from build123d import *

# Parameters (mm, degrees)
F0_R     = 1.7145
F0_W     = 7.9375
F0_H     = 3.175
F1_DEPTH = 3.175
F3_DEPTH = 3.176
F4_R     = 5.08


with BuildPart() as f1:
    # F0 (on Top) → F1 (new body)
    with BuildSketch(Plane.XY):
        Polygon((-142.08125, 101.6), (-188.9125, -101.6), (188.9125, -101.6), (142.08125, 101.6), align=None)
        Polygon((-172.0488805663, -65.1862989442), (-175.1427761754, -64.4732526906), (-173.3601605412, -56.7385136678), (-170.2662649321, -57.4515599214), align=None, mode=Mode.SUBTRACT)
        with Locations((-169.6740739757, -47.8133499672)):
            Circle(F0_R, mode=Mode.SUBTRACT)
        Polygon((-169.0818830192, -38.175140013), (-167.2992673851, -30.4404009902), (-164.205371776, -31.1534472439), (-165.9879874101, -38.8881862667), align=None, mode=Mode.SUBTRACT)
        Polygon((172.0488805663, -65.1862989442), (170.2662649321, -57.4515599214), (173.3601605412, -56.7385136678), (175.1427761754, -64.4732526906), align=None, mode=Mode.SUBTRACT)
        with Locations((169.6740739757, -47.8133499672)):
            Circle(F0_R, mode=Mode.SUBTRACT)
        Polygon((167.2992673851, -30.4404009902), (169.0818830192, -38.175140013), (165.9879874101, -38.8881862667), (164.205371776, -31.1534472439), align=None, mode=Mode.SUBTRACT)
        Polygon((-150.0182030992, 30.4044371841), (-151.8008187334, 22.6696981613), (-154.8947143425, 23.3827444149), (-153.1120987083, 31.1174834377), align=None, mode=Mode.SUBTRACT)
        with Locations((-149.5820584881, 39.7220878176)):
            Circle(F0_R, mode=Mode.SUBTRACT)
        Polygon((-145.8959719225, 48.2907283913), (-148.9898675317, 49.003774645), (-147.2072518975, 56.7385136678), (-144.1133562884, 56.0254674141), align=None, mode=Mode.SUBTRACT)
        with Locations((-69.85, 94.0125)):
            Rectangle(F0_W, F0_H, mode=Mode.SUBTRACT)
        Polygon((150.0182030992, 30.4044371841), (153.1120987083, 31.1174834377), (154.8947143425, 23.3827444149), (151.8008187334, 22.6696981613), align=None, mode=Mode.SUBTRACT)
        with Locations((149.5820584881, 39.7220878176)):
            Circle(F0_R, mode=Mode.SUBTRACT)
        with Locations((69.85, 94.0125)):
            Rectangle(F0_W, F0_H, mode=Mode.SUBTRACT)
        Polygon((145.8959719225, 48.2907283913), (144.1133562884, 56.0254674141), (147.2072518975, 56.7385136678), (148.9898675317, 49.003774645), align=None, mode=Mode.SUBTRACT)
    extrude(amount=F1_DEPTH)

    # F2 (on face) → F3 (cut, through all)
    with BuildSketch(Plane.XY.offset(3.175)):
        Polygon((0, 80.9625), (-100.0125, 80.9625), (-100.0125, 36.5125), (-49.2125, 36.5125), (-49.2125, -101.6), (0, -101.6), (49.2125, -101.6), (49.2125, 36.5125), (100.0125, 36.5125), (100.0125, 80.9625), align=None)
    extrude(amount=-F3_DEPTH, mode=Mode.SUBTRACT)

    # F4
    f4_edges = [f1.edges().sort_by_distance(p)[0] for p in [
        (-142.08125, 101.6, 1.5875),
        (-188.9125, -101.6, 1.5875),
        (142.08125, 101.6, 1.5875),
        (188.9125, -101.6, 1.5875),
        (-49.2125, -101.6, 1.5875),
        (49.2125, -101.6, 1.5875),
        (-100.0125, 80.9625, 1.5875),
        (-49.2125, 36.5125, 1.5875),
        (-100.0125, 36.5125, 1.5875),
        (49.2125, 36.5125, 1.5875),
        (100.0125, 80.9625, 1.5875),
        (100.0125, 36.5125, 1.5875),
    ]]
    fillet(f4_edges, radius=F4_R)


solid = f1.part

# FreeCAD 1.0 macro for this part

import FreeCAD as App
import Part
import Sketcher
Q = App.Units.Quantity


def edges_at(feature, points):
    """Names of the edges that pass closest to the given points."""
    edges = feature.Shape.Edges
    near = lambda p: min(range(len(edges)), key=lambda i: edges[i].distToShape(Part.Vertex(*p))[0])
    return sorted({f"Edge{near(p) + 1}" for p in points})


def add_polygon(sketch, points):
    """Adds a closed chain of lines whose ends are joined by coincident constraints."""
    first, n = sketch.GeometryCount, len(points)
    for a, b in zip(points, points[1:] + points[:1]):
        sketch.addGeometry(Part.LineSegment(App.Vector(*a, 0), App.Vector(*b, 0)), False)
    for i in range(n):
        sketch.addConstraint(Sketcher.Constraint("Coincident", first + i, 2, first + (i + 1) % n, 1))

doc = App.newDocument("Part")
body = doc.addObject("PartDesign::Body", "Body")

# Sketch on XY plane
sketch1 = body.newObject("Sketcher::SketchObject", "Sketch")
sketch1.AttachmentSupport = (doc.getObject("XY_Plane"), [""])
sketch1.MapMode = "FlatFace"
add_polygon(sketch1, [(-142.08125, 101.6), (-188.9125, -101.6), (188.9125, -101.6), (142.08125, 101.6)])  # lines 0-3
add_polygon(sketch1, [(-170.266265, -57.45156), (-172.048881, -65.186299), (-175.142776, -64.473253), (-173.360161, -56.738514)])  # lines 4-7
sketch1.addGeometry(Part.Circle(App.Vector(-169.674074, -47.81335, 0), App.Vector(0, 0, 1), 1.7145), False)  # 8
add_polygon(sketch1, [(-165.987987, -38.888186), (-169.081883, -38.17514), (-167.299267, -30.440401), (-164.205372, -31.153447)])  # lines 9-12
add_polygon(sketch1, [(175.142776, -64.473253), (172.048881, -65.186299), (170.266265, -57.45156), (173.360161, -56.738514)])  # lines 13-16
sketch1.addGeometry(Part.Circle(App.Vector(169.674074, -47.81335, 0), App.Vector(0, 0, 1), 1.7145), False)  # 17
add_polygon(sketch1, [(164.205372, -31.153447), (167.299267, -30.440401), (169.081883, -38.17514), (165.987987, -38.888186)])  # lines 18-21
add_polygon(sketch1, [(-153.112099, 31.117483), (-150.018203, 30.404437), (-151.800819, 22.669698), (-154.894714, 23.382744)])  # lines 22-25
sketch1.addGeometry(Part.Circle(App.Vector(-149.582058, 39.722088, 0), App.Vector(0, 0, 1), 1.7145), False)  # 26
add_polygon(sketch1, [(-144.113356, 56.025467), (-145.895972, 48.290728), (-148.989868, 49.003775), (-147.207252, 56.738514)])  # lines 27-30
add_polygon(sketch1, [(-65.88125, 92.425), (-73.81875, 92.425), (-73.81875, 95.6), (-65.88125, 95.6)])  # lines 31-34
add_polygon(sketch1, [(151.800819, 22.669698), (150.018203, 30.404437), (153.112099, 31.117483), (154.894714, 23.382744)])  # lines 35-38
sketch1.addGeometry(Part.Circle(App.Vector(149.582058, 39.722088, 0), App.Vector(0, 0, 1), 1.7145), False)  # 39
add_polygon(sketch1, [(148.989868, 49.003775), (145.895972, 48.290728), (144.113356, 56.025467), (147.207252, 56.738514)])  # lines 40-43
add_polygon(sketch1, [(73.81875, 92.425), (65.88125, 92.425), (65.88125, 95.6), (73.81875, 95.6)])  # lines 44-47
sketch1.addConstraint(Sketcher.Constraint("Horizontal", 1))
sketch1.addConstraint(Sketcher.Constraint("Horizontal", 3))
sketch1.addConstraint(Sketcher.Constraint("Horizontal", 31))
sketch1.addConstraint(Sketcher.Constraint("Vertical", 32))
sketch1.addConstraint(Sketcher.Constraint("Horizontal", 33))
sketch1.addConstraint(Sketcher.Constraint("Vertical", 34))
sketch1.addConstraint(Sketcher.Constraint("Horizontal", 44))
sketch1.addConstraint(Sketcher.Constraint("Vertical", 45))
sketch1.addConstraint(Sketcher.Constraint("Horizontal", 46))
sketch1.addConstraint(Sketcher.Constraint("Vertical", 47))
sketch1.addConstraint(Sketcher.Constraint("Equal", 8, 17))
sketch1.addConstraint(Sketcher.Constraint("Equal", 17, 26))
sketch1.addConstraint(Sketcher.Constraint("Equal", 26, 39))
sketch1.addConstraint(Sketcher.Constraint("Symmetric", 8, 3, 17, 3, -2))
sketch1.addConstraint(Sketcher.Constraint("Symmetric", 26, 3, 39, 3, -2))
sketch1.addConstraint(Sketcher.Constraint("Symmetric", 4, 2, 13, 2, -2))
sketch1.addConstraint(Sketcher.Constraint("Symmetric", 7, 2, 14, 2, -2))
sketch1.addConstraint(Sketcher.Constraint("Symmetric", 6, 2, 15, 2, -2))
sketch1.addConstraint(Sketcher.Constraint("Symmetric", 5, 2, 16, 2, -2))
sketch1.addConstraint(Sketcher.Constraint("Symmetric", 10, 2, 18, 2, -2))
sketch1.addConstraint(Sketcher.Constraint("Symmetric", 9, 2, 19, 2, -2))
sketch1.addConstraint(Sketcher.Constraint("Symmetric", 12, 2, 20, 2, -2))
sketch1.addConstraint(Sketcher.Constraint("Symmetric", 11, 2, 21, 2, -2))
sketch1.addConstraint(Sketcher.Constraint("Symmetric", 22, 2, 35, 2, -2))
sketch1.addConstraint(Sketcher.Constraint("Symmetric", 25, 2, 36, 2, -2))
sketch1.addConstraint(Sketcher.Constraint("Symmetric", 24, 2, 37, 2, -2))
sketch1.addConstraint(Sketcher.Constraint("Symmetric", 23, 2, 38, 2, -2))
sketch1.addConstraint(Sketcher.Constraint("Symmetric", 27, 2, 40, 2, -2))
sketch1.addConstraint(Sketcher.Constraint("Symmetric", 30, 2, 41, 2, -2))
sketch1.addConstraint(Sketcher.Constraint("Symmetric", 29, 2, 42, 2, -2))
sketch1.addConstraint(Sketcher.Constraint("Symmetric", 28, 2, 43, 2, -2))
sketch1.addConstraint(Sketcher.Constraint("Symmetric", 34, 2, 44, 2, -2))
sketch1.addConstraint(Sketcher.Constraint("Symmetric", 32, 2, 46, 2, -2))
sketch1.addConstraint(Sketcher.Constraint("Parallel", 0, 4))
sketch1.addConstraint(Sketcher.Constraint("Perpendicular", 4, 5))
sketch1.addConstraint(Sketcher.Constraint("Perpendicular", 5, 6))
sketch1.addConstraint(Sketcher.Constraint("Perpendicular", 6, 7))
sketch1.addConstraint(Sketcher.Constraint("Parallel", 7, 9))
sketch1.addConstraint(Sketcher.Constraint("Perpendicular", 9, 10))
sketch1.addConstraint(Sketcher.Constraint("Perpendicular", 10, 11))
sketch1.addConstraint(Sketcher.Constraint("Perpendicular", 11, 12))
sketch1.addConstraint(Sketcher.Constraint("Perpendicular", 2, 13))
sketch1.addConstraint(Sketcher.Constraint("Perpendicular", 12, 22))
sketch1.addConstraint(Sketcher.Constraint("Perpendicular", 22, 23))
sketch1.addConstraint(Sketcher.Constraint("Perpendicular", 23, 24))
sketch1.addConstraint(Sketcher.Constraint("Perpendicular", 24, 25))
sketch1.addConstraint(Sketcher.Constraint("Parallel", 25, 27))
sketch1.addConstraint(Sketcher.Constraint("Perpendicular", 27, 28))
sketch1.addConstraint(Sketcher.Constraint("Perpendicular", 28, 29))
sketch1.addConstraint(Sketcher.Constraint("Perpendicular", 29, 30))
sketch1.addConstraint(Sketcher.Constraint("Equal", 7, 9))
sketch1.addConstraint(Sketcher.Constraint("Equal", 6, 10))
sketch1.addConstraint(Sketcher.Constraint("Equal", 20, 22))
sketch1.addConstraint(Sketcher.Constraint("Equal", 21, 23))
sketch1.addConstraint(Sketcher.Constraint("Equal", 25, 27))
sketch1.addConstraint(Sketcher.Constraint("Equal", 24, 28))
sketch1.addConstraint(Sketcher.Constraint("Diameter", 8, Q("0.135 in")))
sketch1.addConstraint(Sketcher.Constraint("DistanceY", 0, 2, -1, 1, Q("4 in")))
sketch1.addConstraint(Sketcher.Constraint("DistanceY", -1, 1, 2, 2, Q("4 in")))
sketch1.addConstraint(Sketcher.Constraint("DistanceX", 3, 2, 33, 2, Q("3 in")))
sketch1.addConstraint(Sketcher.Constraint("DistanceX", 44, 2, 2, 2, Q("3 in")))
sketch1.addConstraint(Sketcher.Constraint("DistanceX", 1, 1, 1, 2, Q("14.875 in")))
sketch1.addConstraint(Sketcher.Constraint("DistanceX", 3, 2, 3, 1, Q("11.1875 in")))
sketch1.addConstraint(Sketcher.Constraint("DistanceX", 31, 2, 31, 1, Q("0.3125 in")))
sketch1.addConstraint(Sketcher.Constraint("DistanceY", 32, 1, 32, 2, Q("0.125 in")))
sketch1.addConstraint(Sketcher.Constraint("Distance", 4, Q("0.3125 in")))
sketch1.addConstraint(Sketcher.Constraint("Distance", 5, Q("0.125 in")))
sketch1.addConstraint(Sketcher.Constraint("DistanceY", 4, 2, -1, 1, 65.186299))
sketch1.addConstraint(Sketcher.Constraint("DistanceY", 10, 2, -1, 1, 30.440401))
sketch1.addConstraint(Sketcher.Constraint("DistanceY", -1, 1, 23, 2, 22.669698))
sketch1.addConstraint(Sketcher.Constraint("DistanceX", 25, 2, -1, 1, 153.112099))
sketch1.addConstraint(Sketcher.Constraint("DistanceY", -1, 1, 31, 2, 92.425))
sketch1.addConstraint(Sketcher.Constraint("DistanceY", 6, 2, 26, 3, 96.460601))
sketch1.addConstraint(Sketcher.Constraint("DistanceX", 29, 2, 31, 2, 73.388502))
sketch1.addConstraint(Sketcher.Constraint("DistanceY", 8, 3, -1, 1, 47.81335))
sketch1.addConstraint(Sketcher.Constraint("DistanceX", 26, 3, -1, 1, 149.582058))
sketch1.addConstraint(Sketcher.Constraint("DistanceX", 4, 2, -1, 1, 172.048881))
sketch1.addConstraint(Sketcher.Constraint("DistanceX", 11, 2, -1, 1, 164.205372))
sketch1.addConstraint(Sketcher.Constraint("DistanceY", -1, 1, 27, 2, 48.290728))
sketch1.addConstraint(Sketcher.Constraint("DistanceX", 7, 2, 8, 3, 0.592191))
pad1 = body.newObject("PartDesign::Pad", "Pad")
pad1.Profile = sketch1
pad1.Length = Q("0.125 in")

# Sketch on XY plane
sketch2 = body.newObject("Sketcher::SketchObject", "Sketch001")
sketch2.AttachmentSupport = (doc.getObject("XY_Plane"), [""])
sketch2.MapMode = "FlatFace"
sketch2.AttachmentOffset = App.Placement(App.Vector(0, 0, 0.125 * 25.4), App.Rotation())
add_polygon(sketch2, [(-100.0125, 80.9625), (-100.0125, 36.5125), (-49.2125, 36.5125), (-49.2125, -101.6), (49.2125, -101.6), (49.2125, 36.5125), (100.0125, 36.5125), (100.0125, 80.9625)])  # lines 0-7
sketch2.addConstraint(Sketcher.Constraint("Vertical", 0))
sketch2.addConstraint(Sketcher.Constraint("Horizontal", 1))
sketch2.addConstraint(Sketcher.Constraint("Vertical", 2))
sketch2.addConstraint(Sketcher.Constraint("Horizontal", 3))
sketch2.addConstraint(Sketcher.Constraint("Vertical", 4))
sketch2.addConstraint(Sketcher.Constraint("Horizontal", 5))
sketch2.addConstraint(Sketcher.Constraint("Vertical", 6))
sketch2.addConstraint(Sketcher.Constraint("Horizontal", 7))
sketch2.addConstraint(Sketcher.Constraint("Symmetric", 1, 2, 4, 2, -2))
sketch2.addConstraint(Sketcher.Constraint("Equal", 1, 5))
sketch2.addConstraint(Sketcher.Constraint("DistanceX", 1, 1, 1, 2, Q("2 in")))
sketch2.addConstraint(Sketcher.Constraint("DistanceY", 2, 2, -1, 1, Q("4 in")))
sketch2.addConstraint(Sketcher.Constraint("DistanceY", 0, 2, 0, 1, Q("1.75 in")))
sketch2.addConstraint(Sketcher.Constraint("DistanceX", 3, 1, 3, 2, Q("3.875 in")))
sketch2.addConstraint(Sketcher.Constraint("DistanceY", 2, 2, 2, 1, Q("5.4375 in")))
pocket1 = body.newObject("PartDesign::Pocket", "Pocket")
pocket1.Profile = sketch2
pocket1.Type = "ThroughAll"
doc.recompute()

fillet = body.newObject("PartDesign::Fillet", "Fillet")
fillet.Base = (pocket1, edges_at(pocket1, [
    (-142.081, 101.6, 1.587),
    (-188.912, -101.6, 1.587),
    (142.081, 101.6, 1.587),
    (188.912, -101.6, 1.587),
    (-49.212, -101.6, 1.587),
    (49.212, -101.6, 1.587),
    (-100.013, 80.963, 1.587),
    (-49.212, 36.513, 1.587),
    (-100.013, 36.513, 1.587),
    (49.212, 36.513, 1.587),
    (100.013, 80.963, 1.587),
    (100.013, 36.513, 1.587),
]))
fillet.Radius = Q("0.2 in")

doc.recompute()
